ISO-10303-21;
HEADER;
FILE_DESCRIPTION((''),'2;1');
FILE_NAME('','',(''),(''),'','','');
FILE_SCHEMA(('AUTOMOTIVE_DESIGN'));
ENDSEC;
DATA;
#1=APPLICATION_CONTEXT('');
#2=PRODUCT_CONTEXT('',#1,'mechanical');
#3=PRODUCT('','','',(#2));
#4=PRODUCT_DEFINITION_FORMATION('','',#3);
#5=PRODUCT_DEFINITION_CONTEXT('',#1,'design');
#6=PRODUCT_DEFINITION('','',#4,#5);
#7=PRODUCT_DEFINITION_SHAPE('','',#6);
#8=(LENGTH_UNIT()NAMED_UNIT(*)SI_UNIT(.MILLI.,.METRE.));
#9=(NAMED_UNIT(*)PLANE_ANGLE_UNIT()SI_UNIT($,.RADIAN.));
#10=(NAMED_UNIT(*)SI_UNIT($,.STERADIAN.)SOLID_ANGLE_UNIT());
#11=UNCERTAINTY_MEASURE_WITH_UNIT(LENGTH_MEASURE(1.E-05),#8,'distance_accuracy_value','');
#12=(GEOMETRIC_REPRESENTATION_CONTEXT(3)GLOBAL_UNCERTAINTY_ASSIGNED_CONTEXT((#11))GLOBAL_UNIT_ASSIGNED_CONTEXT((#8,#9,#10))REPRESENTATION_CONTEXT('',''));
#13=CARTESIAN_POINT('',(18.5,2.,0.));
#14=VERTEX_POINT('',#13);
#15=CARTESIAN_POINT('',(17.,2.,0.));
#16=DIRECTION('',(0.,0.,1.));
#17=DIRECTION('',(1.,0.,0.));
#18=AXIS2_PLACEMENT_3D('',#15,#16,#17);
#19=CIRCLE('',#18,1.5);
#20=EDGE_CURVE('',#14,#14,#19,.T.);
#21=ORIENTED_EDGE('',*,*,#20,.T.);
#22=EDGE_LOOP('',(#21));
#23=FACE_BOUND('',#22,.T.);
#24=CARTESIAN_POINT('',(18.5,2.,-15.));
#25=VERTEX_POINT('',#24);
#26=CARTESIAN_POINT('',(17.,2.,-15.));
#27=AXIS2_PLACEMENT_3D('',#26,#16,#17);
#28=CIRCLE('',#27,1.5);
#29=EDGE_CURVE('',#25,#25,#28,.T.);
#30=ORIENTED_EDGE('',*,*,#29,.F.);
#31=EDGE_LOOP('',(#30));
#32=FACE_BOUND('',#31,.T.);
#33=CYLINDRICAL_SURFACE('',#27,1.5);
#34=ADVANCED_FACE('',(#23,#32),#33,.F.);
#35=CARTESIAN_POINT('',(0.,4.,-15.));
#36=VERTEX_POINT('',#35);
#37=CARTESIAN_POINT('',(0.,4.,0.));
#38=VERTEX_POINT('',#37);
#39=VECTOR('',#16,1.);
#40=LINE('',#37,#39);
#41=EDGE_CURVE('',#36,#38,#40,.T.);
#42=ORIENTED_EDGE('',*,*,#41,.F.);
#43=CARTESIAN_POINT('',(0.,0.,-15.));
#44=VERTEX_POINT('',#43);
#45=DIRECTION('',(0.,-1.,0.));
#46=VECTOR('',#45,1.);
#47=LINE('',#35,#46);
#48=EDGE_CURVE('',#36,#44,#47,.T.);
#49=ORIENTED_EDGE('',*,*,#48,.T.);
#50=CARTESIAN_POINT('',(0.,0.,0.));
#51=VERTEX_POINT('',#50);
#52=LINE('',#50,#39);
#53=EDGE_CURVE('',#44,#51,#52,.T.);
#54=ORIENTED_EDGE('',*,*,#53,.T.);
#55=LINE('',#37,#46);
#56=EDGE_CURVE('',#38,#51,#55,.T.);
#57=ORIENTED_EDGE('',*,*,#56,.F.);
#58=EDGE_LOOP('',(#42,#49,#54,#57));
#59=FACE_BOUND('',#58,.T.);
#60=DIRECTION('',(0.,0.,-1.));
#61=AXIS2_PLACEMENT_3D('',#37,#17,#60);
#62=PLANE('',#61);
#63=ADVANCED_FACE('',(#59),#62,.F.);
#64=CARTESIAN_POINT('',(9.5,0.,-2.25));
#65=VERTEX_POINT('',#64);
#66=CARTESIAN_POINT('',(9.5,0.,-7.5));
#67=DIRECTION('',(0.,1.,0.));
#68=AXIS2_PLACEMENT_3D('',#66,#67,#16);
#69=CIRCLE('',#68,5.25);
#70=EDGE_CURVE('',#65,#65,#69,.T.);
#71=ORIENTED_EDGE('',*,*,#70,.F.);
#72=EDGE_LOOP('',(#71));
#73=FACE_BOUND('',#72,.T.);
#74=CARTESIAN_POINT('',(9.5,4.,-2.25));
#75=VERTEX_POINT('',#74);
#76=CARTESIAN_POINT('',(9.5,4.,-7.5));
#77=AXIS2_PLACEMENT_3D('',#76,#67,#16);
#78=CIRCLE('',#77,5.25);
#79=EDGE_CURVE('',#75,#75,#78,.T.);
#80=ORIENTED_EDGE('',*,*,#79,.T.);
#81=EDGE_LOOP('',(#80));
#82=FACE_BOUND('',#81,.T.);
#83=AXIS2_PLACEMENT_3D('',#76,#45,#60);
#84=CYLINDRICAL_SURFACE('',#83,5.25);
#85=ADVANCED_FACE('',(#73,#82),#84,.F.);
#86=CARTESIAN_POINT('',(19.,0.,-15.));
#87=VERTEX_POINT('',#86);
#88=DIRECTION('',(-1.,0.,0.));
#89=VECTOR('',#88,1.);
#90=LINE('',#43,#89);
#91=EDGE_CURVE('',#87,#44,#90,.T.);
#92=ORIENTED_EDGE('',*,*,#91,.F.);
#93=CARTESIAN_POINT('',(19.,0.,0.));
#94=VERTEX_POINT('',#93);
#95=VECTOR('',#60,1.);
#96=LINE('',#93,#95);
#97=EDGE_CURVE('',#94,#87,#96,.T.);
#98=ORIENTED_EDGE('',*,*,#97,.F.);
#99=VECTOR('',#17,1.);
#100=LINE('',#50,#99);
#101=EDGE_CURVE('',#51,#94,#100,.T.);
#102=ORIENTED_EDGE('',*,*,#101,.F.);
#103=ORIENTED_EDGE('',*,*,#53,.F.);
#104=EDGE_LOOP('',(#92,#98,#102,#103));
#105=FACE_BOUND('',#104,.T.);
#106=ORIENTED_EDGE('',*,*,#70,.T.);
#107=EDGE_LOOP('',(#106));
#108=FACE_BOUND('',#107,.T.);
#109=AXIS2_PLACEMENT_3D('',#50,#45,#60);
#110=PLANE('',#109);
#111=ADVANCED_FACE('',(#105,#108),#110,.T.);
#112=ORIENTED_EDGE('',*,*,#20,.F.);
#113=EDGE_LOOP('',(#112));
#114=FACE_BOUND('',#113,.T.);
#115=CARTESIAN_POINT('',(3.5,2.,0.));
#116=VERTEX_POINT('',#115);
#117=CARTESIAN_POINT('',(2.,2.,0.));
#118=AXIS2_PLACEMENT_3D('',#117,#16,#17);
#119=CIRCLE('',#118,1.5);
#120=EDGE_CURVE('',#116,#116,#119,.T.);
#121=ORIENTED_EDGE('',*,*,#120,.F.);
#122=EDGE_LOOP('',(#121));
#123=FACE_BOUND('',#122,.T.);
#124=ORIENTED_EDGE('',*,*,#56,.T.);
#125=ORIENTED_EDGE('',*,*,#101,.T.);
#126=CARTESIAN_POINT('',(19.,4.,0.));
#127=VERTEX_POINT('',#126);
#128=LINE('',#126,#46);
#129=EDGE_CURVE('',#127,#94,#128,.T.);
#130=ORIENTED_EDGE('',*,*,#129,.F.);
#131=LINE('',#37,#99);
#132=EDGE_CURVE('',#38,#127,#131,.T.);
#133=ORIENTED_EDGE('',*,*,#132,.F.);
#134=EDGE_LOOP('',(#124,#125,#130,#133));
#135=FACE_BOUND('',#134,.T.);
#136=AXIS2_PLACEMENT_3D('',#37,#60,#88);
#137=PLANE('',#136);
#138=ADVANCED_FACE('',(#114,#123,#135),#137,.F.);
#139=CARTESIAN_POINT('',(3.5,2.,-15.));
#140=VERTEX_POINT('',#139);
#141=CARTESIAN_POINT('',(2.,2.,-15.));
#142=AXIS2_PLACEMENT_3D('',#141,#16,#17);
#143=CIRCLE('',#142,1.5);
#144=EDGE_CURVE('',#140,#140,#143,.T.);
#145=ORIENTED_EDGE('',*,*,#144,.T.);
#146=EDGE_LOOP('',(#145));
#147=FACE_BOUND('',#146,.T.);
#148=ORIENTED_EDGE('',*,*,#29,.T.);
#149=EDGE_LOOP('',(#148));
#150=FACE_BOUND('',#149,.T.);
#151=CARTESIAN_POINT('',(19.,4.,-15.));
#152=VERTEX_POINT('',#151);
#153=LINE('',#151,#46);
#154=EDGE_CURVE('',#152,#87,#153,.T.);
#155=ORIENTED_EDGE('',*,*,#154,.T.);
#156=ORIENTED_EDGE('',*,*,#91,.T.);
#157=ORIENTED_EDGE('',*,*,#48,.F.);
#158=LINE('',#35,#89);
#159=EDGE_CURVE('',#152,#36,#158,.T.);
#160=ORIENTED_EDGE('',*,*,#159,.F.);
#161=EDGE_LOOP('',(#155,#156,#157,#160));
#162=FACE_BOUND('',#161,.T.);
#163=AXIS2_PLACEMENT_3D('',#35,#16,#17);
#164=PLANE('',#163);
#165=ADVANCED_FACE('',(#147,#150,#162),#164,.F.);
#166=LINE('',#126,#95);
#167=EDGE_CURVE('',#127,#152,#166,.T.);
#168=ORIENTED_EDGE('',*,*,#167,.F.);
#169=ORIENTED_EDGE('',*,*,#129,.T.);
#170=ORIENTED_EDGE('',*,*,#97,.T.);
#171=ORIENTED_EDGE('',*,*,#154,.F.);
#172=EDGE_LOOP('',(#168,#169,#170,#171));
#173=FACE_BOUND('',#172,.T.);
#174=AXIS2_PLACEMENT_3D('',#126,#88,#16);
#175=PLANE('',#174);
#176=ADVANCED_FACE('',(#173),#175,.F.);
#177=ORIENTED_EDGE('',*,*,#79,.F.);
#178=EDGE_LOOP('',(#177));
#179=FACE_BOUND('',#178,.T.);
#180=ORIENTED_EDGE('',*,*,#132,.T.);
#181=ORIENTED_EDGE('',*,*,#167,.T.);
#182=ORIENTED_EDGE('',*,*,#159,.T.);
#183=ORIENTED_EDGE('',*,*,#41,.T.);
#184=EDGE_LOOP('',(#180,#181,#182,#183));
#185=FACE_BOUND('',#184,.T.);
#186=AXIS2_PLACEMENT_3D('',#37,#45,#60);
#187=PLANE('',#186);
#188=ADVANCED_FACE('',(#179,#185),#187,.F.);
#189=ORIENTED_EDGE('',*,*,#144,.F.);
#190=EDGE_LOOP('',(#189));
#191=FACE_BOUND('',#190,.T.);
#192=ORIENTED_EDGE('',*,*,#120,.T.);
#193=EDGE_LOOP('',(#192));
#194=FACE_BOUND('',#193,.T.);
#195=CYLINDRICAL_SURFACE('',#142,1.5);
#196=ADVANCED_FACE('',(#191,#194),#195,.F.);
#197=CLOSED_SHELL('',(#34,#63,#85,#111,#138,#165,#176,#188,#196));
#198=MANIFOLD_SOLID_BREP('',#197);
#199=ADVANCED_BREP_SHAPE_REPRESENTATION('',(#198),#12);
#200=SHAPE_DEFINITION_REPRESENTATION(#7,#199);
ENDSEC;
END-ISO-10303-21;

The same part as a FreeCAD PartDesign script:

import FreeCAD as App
import Part
import Sketcher

V = App.Vector


def add_polygon(sketch, points):
    """Adds a closed chain of lines whose ends are joined by coincident constraints."""
    first, n = sketch.GeometryCount, len(points)
    for a, b in zip(points, points[1:] + points[:1]):
        sketch.addGeometry(Part.LineSegment(App.Vector(*a, 0), App.Vector(*b, 0)), False)
    for i in range(n):
        sketch.addConstraint(Sketcher.Constraint("Coincident", first + i, 2, first + (i + 1) % n, 1))

doc = App.newDocument("Part")
body = doc.addObject("PartDesign::Body", "Body")

# Sketch on XZ plane
sketch1 = body.newObject("Sketcher::SketchObject", "Sketch")
sketch1.AttachmentSupport = (doc.getObject("XZ_Plane"), [""])
sketch1.MapMode = "FlatFace"
add_polygon(sketch1, [(0, -15), (0, 0), (19, 0), (19, -15)])  # lines 0-3
sketch1.addGeometry(Part.Circle(V(10, -8, 0), V(0, 0, 1), 5), False)  # 4
sketch1.addConstraint([
    Sketcher.Constraint("Vertical", 0),
    Sketcher.Constraint("Horizontal", 1),
    Sketcher.Constraint("Vertical", 2),
    Sketcher.Constraint("Horizontal", 3),
    Sketcher.Constraint("Coincident", 0, 2, -1, 1),
    Sketcher.Constraint("Diameter", 4, 10.5),
    Sketcher.Constraint("DistanceX", 1, 1, 1, 2, 19.0),
    Sketcher.Constraint("DistanceY", 0, 1, 0, 2, 15.0),
    Sketcher.Constraint("DistanceX", -1, 1, 4, 3, 9.5),
    Sketcher.Constraint("DistanceY", 4, 3, -1, 1, 7.5),
])
pad1 = body.newObject("PartDesign::Pad", "Pad")
pad1.Profile = sketch1
pad1.Length = 4
pad1.Reversed = True

# Sketch on XY plane
sketch2 = body.newObject("Sketcher::SketchObject", "Sketch001")
sketch2.AttachmentSupport = (doc.getObject("XY_Plane"), [""])
sketch2.MapMode = "FlatFace"
sketch2.addGeometry([
    Part.Circle(V(2, 2, 0), V(0, 0, 1), 1.5),
    Part.Circle(V(17, 2, 0), V(0, 0, 1), 1.5),
], False)
sketch2.addConstraint([
    Sketcher.Constraint("Equal", 0, 1),
    Sketcher.Constraint("Horizontal", 0, 3, 1, 3),
    Sketcher.Constraint("Diameter", 0, 3.0),
    Sketcher.Constraint("DistanceX", -1, 1, 0, 3, 2.0),
    Sketcher.Constraint("DistanceY", -1, 1, 0, 3, 2.0),
    Sketcher.Constraint("DistanceX", -1, 1, 1, 3, 17.0),
])
pocket1 = body.newObject("PartDesign::Pocket", "Pocket")
pocket1.Profile = sketch2
pocket1.Length = 15

doc.recompute()
